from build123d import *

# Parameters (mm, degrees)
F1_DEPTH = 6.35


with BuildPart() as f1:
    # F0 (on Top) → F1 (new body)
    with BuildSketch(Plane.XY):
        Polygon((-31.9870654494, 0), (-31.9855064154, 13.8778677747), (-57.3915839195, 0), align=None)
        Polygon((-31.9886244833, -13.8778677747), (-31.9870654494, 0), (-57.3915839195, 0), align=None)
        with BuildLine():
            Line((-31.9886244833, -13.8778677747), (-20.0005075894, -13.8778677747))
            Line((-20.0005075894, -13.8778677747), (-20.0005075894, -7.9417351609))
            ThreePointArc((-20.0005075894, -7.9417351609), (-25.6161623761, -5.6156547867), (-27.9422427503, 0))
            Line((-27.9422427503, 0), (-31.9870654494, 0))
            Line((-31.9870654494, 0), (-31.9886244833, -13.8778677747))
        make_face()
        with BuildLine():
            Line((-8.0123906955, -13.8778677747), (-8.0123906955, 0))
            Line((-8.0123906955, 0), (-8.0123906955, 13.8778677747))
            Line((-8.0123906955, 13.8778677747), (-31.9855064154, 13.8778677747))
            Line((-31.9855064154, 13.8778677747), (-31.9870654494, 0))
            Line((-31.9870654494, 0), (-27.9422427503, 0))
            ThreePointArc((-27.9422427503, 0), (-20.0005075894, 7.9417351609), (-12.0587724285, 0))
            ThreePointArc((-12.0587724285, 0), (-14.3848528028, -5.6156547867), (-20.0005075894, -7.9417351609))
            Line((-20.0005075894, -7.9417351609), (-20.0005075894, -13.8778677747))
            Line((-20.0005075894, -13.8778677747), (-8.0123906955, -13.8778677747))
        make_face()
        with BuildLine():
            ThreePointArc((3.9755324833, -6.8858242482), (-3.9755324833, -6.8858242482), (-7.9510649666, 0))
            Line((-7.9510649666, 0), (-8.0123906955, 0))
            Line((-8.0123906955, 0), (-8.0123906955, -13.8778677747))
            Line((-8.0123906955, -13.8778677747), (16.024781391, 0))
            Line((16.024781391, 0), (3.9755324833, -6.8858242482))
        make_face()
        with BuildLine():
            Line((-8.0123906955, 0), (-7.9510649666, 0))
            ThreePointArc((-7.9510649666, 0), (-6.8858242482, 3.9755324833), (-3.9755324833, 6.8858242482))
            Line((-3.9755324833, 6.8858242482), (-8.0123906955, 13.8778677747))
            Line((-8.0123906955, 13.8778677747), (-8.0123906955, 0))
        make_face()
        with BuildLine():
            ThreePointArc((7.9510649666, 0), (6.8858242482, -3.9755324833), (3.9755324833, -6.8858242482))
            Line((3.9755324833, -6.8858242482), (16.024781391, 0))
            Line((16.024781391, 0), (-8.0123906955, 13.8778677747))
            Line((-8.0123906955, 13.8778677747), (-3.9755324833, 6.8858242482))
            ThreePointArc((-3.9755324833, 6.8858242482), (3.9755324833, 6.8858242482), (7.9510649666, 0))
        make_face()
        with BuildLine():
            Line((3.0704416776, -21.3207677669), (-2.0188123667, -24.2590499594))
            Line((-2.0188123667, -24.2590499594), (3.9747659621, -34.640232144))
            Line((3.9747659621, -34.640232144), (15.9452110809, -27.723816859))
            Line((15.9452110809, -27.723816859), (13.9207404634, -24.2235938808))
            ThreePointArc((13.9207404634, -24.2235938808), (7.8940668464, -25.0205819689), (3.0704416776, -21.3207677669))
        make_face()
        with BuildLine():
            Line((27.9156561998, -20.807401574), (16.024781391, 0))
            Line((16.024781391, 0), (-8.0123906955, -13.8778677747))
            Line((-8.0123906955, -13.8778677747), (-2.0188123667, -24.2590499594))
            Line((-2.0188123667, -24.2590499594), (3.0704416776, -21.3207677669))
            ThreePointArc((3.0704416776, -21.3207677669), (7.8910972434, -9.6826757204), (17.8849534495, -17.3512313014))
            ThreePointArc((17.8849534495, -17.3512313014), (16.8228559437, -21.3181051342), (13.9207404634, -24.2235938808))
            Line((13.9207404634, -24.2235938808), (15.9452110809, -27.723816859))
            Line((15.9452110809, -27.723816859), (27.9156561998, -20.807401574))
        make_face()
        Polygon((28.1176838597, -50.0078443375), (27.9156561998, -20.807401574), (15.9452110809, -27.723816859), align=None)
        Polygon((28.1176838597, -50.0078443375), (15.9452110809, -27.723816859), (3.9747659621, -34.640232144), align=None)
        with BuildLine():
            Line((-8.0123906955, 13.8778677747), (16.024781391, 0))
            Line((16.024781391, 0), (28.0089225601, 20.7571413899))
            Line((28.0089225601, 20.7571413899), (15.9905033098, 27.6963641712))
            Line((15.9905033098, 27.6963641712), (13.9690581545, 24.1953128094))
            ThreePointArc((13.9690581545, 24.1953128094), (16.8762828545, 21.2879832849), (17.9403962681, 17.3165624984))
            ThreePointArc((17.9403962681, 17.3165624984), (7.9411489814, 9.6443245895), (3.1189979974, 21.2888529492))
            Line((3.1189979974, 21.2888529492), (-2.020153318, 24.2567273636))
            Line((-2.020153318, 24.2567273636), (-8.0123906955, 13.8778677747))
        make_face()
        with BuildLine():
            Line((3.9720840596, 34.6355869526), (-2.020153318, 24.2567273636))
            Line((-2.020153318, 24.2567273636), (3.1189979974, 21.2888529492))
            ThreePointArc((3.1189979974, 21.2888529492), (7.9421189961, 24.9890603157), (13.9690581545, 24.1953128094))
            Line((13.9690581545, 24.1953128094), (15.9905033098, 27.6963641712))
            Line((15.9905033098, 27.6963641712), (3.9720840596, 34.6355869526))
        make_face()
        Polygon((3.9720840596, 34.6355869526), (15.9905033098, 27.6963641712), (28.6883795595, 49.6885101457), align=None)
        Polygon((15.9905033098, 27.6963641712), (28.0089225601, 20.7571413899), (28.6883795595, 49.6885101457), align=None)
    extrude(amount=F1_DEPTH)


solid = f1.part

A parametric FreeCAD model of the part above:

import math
import FreeCAD as App
import Part
import Sketcher

V = App.Vector
Q = App.Units.Quantity

doc = App.newDocument("Part")
body = doc.addObject("PartDesign::Body", "Body")

# Sketch on XY plane
sketch1 = body.newObject("Sketcher::SketchObject", "Sketch")
sketch1.AttachmentSupport = (doc.getObject("XY_Plane"), [""])
sketch1.MapMode = "FlatFace"
sketch1.addGeometry([
    Part.LineSegment(V(-32, 14, 0), V(-57, 0, 0)),  # 0
    Part.LineSegment(V(-57, 0, 0), V(-32, -14, 0)),  # 1
    Part.LineSegment(V(-32, -14, 0), V(-8, -14, 0)),  # 2
    Part.LineSegment(V(-8, -14, 0), V(-2, -24, 0)),  # 3
    Part.LineSegment(V(-2, -24, 0), V(4, -35, 0)),  # 4
    Part.LineSegment(V(4, -35, 0), V(28, -50, 0)),  # 5
    Part.LineSegment(V(28, -50, 0), V(28, -21, 0)),  # 6
    Part.LineSegment(V(28, -21, 0), V(16, 0, 0)),  # 7
    Part.LineSegment(V(16, 0, 0), V(28, 21, 0)),  # 8
    Part.LineSegment(V(28, 21, 0), V(29, 50, 0)),  # 9
    Part.LineSegment(V(29, 50, 0), V(4, 35, 0)),  # 10
    Part.LineSegment(V(4, 35, 0), V(-2, 24, 0)),  # 11
    Part.LineSegment(V(-2, 24, 0), V(-8, 14, 0)),  # 12
    Part.LineSegment(V(-8, 14, 0), V(-32, 14, 0)),  # 13
    Part.ArcOfCircle(Part.Circle(V(10, 17, 0), V(0, 0, 1), 8), math.radians(150), math.radians(360)),  # 14
    Part.ArcOfCircle(Part.Circle(V(10, 17, 0), V(0, 0, 1), 8), math.radians(0), math.radians(150)),  # 15
    Part.ArcOfCircle(Part.Circle(V(0, 0, 0), V(0, 0, 1), 8), math.radians(180), math.radians(300)),  # 16
    Part.ArcOfCircle(Part.Circle(V(0, 0, 0), V(0, 0, 1), 8), math.radians(120), math.radians(180)),  # 17
    Part.ArcOfCircle(Part.Circle(V(0, 0, 0), V(0, 0, 1), 8), math.radians(0), math.radians(120)),  # 18
    Part.ArcOfCircle(Part.Circle(V(0, 0, 0), V(0, 0, 1), 8), math.radians(-60), math.radians(0)),  # 19
    Part.ArcOfCircle(Part.Circle(V(-20, 0, 0), V(0, 0, 1), 8), math.radians(180), math.radians(270)),  # 20
    Part.ArcOfCircle(Part.Circle(V(-20, 0, 0), V(0, 0, 1), 8), math.radians(0), math.radians(180)),  # 21
    Part.ArcOfCircle(Part.Circle(V(-20, 0, 0), V(0, 0, 1), 8), math.radians(-90), math.radians(0)),  # 22
    Part.ArcOfCircle(Part.Circle(V(10, -17, 0), V(0, 0, 1), 8), math.radians(0), math.radians(210)),  # 23
    Part.ArcOfCircle(Part.Circle(V(10, -17, 0), V(0, 0, 1), 8), math.radians(-60), math.radians(0)),  # 24
    Part.ArcOfCircle(Part.Circle(V(10, -17, 0), V(0, 0, 1), 8), math.radians(-150), math.radians(-60)),  # 25
], False)
sketch1.addConstraint([
    Sketcher.Constraint("Coincident", 0, 2, 1, 1),
    Sketcher.Constraint("Coincident", 1, 2, 2, 1),
    Sketcher.Constraint("Coincident", 2, 2, 3, 1),
    Sketcher.Constraint("Coincident", 3, 2, 4, 1),
    Sketcher.Constraint("Coincident", 4, 2, 5, 1),
    Sketcher.Constraint("Coincident", 5, 2, 6, 1),
    Sketcher.Constraint("Coincident", 6, 2, 7, 1),
    Sketcher.Constraint("Coincident", 7, 2, 8, 1),
    Sketcher.Constraint("Coincident", 8, 2, 9, 1),
    Sketcher.Constraint("Coincident", 9, 2, 10, 1),
    Sketcher.Constraint("Coincident", 10, 2, 11, 1),
    Sketcher.Constraint("Coincident", 11, 2, 12, 1),
    Sketcher.Constraint("Coincident", 12, 2, 13, 1),
    Sketcher.Constraint("Coincident", 13, 2, 0, 1),
    Sketcher.Constraint("Tangent", 14, 1, 15, 2),
    Sketcher.Constraint("Coincident", 15, 1, 14, 2),
    Sketcher.Constraint("Tangent", 16, 1, 17, 2),
    Sketcher.Constraint("Tangent", 17, 1, 18, 2),
    Sketcher.Constraint("Tangent", 18, 1, 19, 2),
    Sketcher.Constraint("Tangent", 19, 1, 16, 2),
    Sketcher.Constraint("Tangent", 20, 1, 21, 2),
    Sketcher.Constraint("Tangent", 21, 1, 22, 2),
    Sketcher.Constraint("Tangent", 22, 1, 20, 2),
    Sketcher.Constraint("Tangent", 23, 1, 24, 2),
    Sketcher.Constraint("Tangent", 24, 1, 25, 2),
    Sketcher.Constraint("Tangent", 25, 1, 23, 2),
    Sketcher.Constraint("Horizontal", 2),
    Sketcher.Constraint("Horizontal", 13),
    Sketcher.Constraint("Coincident", 16, 3, -1, 1),
    Sketcher.Constraint("Equal", 16, 17),
    Sketcher.Constraint("Symmetric", 2, 2, 12, 2, -1),
    Sketcher.Constraint("PointOnObject", 20, 3, -1),
    Sketcher.Constraint("PointOnObject", 0, 2, -1),
    Sketcher.Constraint("PointOnObject", 7, 2, -1),
    Sketcher.Constraint("PointOnObject", 16, 1, -1),
    Sketcher.Constraint("PointOnObject", 18, 1, -1),
    Sketcher.Constraint("PointOnObject", 20, 1, -1),
    Sketcher.Constraint("PointOnObject", 21, 1, -1),
    Sketcher.Constraint("Parallel", 3, 4),
    Sketcher.Constraint("Parallel", 8, 11),
    Sketcher.Constraint("Parallel", 11, 12),
    Sketcher.Constraint("Horizontal", 14, 3, 15, 1),
    Sketcher.Constraint("Horizontal", 25, 3, 23, 1),
    Sketcher.Constraint("Vertical", 21, 3, 22, 1),
    Sketcher.Constraint("Equal", 3, 4),
    Sketcher.Constraint("Equal", 9, 10),
    Sketcher.Constraint("Equal", 11, 12),
    Sketcher.Constraint("Angle", 3, Q("-60 deg")),
    Sketcher.Constraint("Angle", 8, Q("60 deg")),
    Sketcher.Constraint("Radius", 14, Q("7.943007 mm")),
    Sketcher.Constraint("Radius", 16, Q("7.951065 mm")),
    Sketcher.Constraint("Radius", 20, Q("7.941735 mm")),
    Sketcher.Constraint("Radius", 23, Q("7.939073 mm")),
    Sketcher.Constraint("Distance", 1, Q("28.946598 mm")),
    Sketcher.Constraint("DistanceY", 6, 2, -1, 1, Q("20.807402 mm")),
    Sketcher.Constraint("DistanceY", 4, 2, 25, 3, Q("17.289001 mm")),
    Sketcher.Constraint("DistanceX", 7, 2, 9, 2, Q("12.663598 mm")),
    Sketcher.Constraint("DistanceX", 13, 2, 20, 3, Q("11.984999 mm")),
    Sketcher.Constraint("DistanceX", 14, 1, 15, 1, Q("14.821398 mm")),
    Sketcher.Constraint("DistanceX", 25, 1, 24, 1, Q("10.850299 mm")),
    Sketcher.Constraint("Distance", 6, Q("29.201142 mm")),
    Sketcher.Constraint("Distance", 7, Q("23.96541 mm")),
    Sketcher.Constraint("DistanceX", 2, 1, 2, 2, Q("23.976234 mm")),
    Sketcher.Constraint("DistanceX", 13, 2, 13, 1, Q("23.973116 mm")),
    Sketcher.Constraint("DistanceX", -1, 1, 14, 3, Q("9.997389 mm")),
    Sketcher.Constraint("DistanceX", -1, 1, 23, 3, Q("9.945881 mm")),
    Sketcher.Constraint("DistanceY", 23, 3, -1, 1, Q("17.351231 mm")),
    Sketcher.Constraint("DistanceX", 2, 2, -1, 1, Q("8.012391 mm")),
    Sketcher.Constraint("DistanceY", 3, 2, -1, 1, Q("24.25905 mm")),
    Sketcher.Constraint("DistanceX", -1, 1, 7, 2, Q("16.024781 mm")),
    Sketcher.Constraint("DistanceY", -1, 1, 8, 2, Q("20.757141 mm")),
    Sketcher.Constraint("DistanceY", -1, 1, 9, 2, Q("49.68851 mm")),
    Sketcher.Constraint("DistanceX", -1, 1, 24, 1, Q("13.92074 mm")),
    Sketcher.Constraint("DistanceY", 14, 3, 8, 2, Q("3.440579 mm")),
    Sketcher.Constraint("DistanceX", 21, 1, 17, 1, Q("8.08324 mm")),
    Sketcher.Constraint("DistanceX", 19, 1, 23, 1, Q("13.909421 mm")),
    Sketcher.Constraint("Distance", 5, Q("28.618945 mm")),
])
pad1 = body.newObject("PartDesign::Pad", "Pad")
pad1.Profile = sketch1
pad1.Length = Q("0.25 in")

doc.recompute()
